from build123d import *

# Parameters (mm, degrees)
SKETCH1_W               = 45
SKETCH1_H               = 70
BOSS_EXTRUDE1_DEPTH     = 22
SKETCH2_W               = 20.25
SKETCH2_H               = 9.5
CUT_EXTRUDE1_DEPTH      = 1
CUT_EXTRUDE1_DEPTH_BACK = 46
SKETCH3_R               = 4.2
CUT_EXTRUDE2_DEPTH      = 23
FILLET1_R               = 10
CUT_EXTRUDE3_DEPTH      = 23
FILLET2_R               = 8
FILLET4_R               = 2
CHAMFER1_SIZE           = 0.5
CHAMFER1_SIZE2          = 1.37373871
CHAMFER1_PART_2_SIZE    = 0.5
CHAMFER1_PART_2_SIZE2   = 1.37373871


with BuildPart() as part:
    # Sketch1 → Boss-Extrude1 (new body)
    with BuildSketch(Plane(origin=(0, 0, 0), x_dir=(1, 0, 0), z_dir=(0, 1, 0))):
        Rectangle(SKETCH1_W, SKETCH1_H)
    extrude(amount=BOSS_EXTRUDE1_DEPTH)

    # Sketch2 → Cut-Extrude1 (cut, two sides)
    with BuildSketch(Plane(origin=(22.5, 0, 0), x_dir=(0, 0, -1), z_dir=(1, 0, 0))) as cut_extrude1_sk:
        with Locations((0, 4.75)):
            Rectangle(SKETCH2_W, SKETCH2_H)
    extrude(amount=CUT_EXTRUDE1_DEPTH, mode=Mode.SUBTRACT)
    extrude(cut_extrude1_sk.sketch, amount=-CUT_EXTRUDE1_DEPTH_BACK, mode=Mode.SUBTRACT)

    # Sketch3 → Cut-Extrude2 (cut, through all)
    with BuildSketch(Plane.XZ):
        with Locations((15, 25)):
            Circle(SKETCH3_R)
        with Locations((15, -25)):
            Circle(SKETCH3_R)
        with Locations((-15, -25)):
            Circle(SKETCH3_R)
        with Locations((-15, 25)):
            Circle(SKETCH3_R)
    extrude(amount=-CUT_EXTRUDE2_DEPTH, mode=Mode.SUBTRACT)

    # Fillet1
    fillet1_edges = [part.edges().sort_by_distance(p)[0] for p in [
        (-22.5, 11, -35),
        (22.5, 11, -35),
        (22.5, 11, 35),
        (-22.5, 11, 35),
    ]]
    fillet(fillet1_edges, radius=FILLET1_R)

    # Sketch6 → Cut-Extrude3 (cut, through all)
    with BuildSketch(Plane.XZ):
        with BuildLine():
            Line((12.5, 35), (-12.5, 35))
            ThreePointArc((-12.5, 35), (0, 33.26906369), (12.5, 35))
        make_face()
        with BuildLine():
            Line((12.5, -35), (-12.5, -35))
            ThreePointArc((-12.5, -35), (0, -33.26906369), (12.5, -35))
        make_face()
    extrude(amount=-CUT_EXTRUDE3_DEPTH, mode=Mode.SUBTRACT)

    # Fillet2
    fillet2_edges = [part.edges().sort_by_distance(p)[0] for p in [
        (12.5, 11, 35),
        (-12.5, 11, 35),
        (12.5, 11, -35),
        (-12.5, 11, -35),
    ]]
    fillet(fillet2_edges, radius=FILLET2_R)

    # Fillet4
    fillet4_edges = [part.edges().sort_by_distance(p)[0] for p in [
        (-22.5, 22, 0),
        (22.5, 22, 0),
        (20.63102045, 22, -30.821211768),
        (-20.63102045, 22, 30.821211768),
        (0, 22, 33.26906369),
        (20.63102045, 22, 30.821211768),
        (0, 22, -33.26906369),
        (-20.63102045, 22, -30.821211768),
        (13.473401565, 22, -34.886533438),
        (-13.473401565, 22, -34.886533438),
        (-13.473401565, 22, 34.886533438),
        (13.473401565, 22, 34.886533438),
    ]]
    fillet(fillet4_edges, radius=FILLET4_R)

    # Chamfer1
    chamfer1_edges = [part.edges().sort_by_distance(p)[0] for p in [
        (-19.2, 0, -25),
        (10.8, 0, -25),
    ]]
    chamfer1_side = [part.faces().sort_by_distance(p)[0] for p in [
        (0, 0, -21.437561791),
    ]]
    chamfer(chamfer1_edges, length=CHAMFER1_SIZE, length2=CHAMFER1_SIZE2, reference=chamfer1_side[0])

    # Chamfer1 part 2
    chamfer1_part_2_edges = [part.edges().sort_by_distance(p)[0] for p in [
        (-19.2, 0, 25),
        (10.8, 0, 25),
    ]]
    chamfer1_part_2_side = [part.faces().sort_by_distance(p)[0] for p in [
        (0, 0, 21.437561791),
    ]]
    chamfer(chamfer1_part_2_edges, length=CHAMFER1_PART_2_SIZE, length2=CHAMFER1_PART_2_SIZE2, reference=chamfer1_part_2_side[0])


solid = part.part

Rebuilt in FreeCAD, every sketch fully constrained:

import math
import FreeCAD as App
import Part
import Sketcher

V = App.Vector


def edges_at(feature, points):
    """Names of the edges that pass closest to the given points."""
    edges = feature.Shape.Edges
    near = lambda p: min(range(len(edges)), key=lambda i: edges[i].distToShape(Part.Vertex(*p))[0])
    return sorted({f"Edge{near(p) + 1}" for p in points})


def add_polygon(sketch, points):
    """Adds a closed chain of lines whose ends are joined by coincident constraints."""
    first, n = sketch.GeometryCount, len(points)
    for a, b in zip(points, points[1:] + points[:1]):
        sketch.addGeometry(Part.LineSegment(App.Vector(*a, 0), App.Vector(*b, 0)), False)
    for i in range(n):
        sketch.addConstraint(Sketcher.Constraint("Coincident", first + i, 2, first + (i + 1) % n, 1))

doc = App.newDocument("Part")
body = doc.addObject("PartDesign::Body", "Body")

# Sketch on XZ plane
sketch1 = doc.addObject("Sketcher::SketchObject", "Sketch")
body.addObject(sketch1)
sketch1.AttachmentSupport = (doc.XZ_Plane, [""])
sketch1.MapMode = "FlatFace"
add_polygon(sketch1, [(-22, -35), (-22, 35), (22, 35), (22, -35)])  # lines 0-3
sketch1.addConstraint([
    Sketcher.Constraint("Vertical", 0),
    Sketcher.Constraint("Horizontal", 1),
    Sketcher.Constraint("Vertical", 2),
    Sketcher.Constraint("Horizontal", 3),
    Sketcher.Constraint("Symmetric", 0, 2, 2, 2, -1, 1),
    Sketcher.Constraint("DistanceX", 1, 1, 1, 2, 45.0),
    Sketcher.Constraint("DistanceY", 0, 1, 0, 2, 70.0),
])
pad1 = doc.addObject("PartDesign::Pad", "Pad")
body.addObject(pad1)
pad1.Profile = sketch1
pad1.Length = 22
pad1.Reversed = True

# Sketch on YZ plane
sketch2 = doc.addObject("Sketcher::SketchObject", "Sketch001")
body.addObject(sketch2)
sketch2.AttachmentSupport = (doc.YZ_Plane, [""])
sketch2.MapMode = "FlatFace"
sketch2.AttachmentOffset = App.Placement(V(0, 0, 22.5), App.Rotation())
add_polygon(sketch2, [(10, 10), (0, 10), (0, -10), (10, -10)])  # lines 0-3
sketch2.addConstraint([
    Sketcher.Constraint("Horizontal", 0),
    Sketcher.Constraint("Vertical", 1),
    Sketcher.Constraint("Horizontal", 2),
    Sketcher.Constraint("Vertical", 3),
    Sketcher.Constraint("Symmetric", 0, 2, 1, 2, -1, 1),
    Sketcher.Constraint("DistanceX", 0, 2, 0, 1, 9.5),
    Sketcher.Constraint("DistanceY", 1, 2, 1, 1, 20.25),
])
pocket1 = doc.addObject("PartDesign::Pocket", "Pocket")
body.addObject(pocket1)
pocket1.Profile = sketch2
pocket1.Type = "ThroughAll"
pocket1.Midplane = True

# Sketch on XZ plane
sketch3 = doc.addObject("Sketcher::SketchObject", "Sketch002")
body.addObject(sketch3)
sketch3.AttachmentSupport = (doc.XZ_Plane, [""])
sketch3.MapMode = "FlatFace"
sketch3.addGeometry([
    Part.Circle(V(15, 25, 0), V(0, 0, 1), 4.2),
    Part.Circle(V(15, -25, 0), V(0, 0, 1), 4.2),
    Part.Circle(V(-15, -25, 0), V(0, 0, 1), 4.2),
    Part.Circle(V(-15, 25, 0), V(0, 0, 1), 4.2),
], False)
sketch3.addConstraint([
    Sketcher.Constraint("Equal", 0, 1),
    Sketcher.Constraint("Equal", 1, 2),
    Sketcher.Constraint("Equal", 2, 3),
    Sketcher.Constraint("Symmetric", 0, 3, 2, 3, -1, 1),
    Sketcher.Constraint("Symmetric", 1, 3, 3, 3, -1, 1),
    Sketcher.Constraint("Symmetric", 1, 3, 2, 3, -2),
    Sketcher.Constraint("Diameter", 0, 8.4),
    Sketcher.Constraint("DistanceX", -1, 1, 0, 3, 15.0),
    Sketcher.Constraint("DistanceY", -1, 1, 0, 3, 25.0),
])
pocket2 = doc.addObject("PartDesign::Pocket", "Pocket001")
body.addObject(pocket2)
pocket2.Profile = sketch3
pocket2.Type = "ThroughAll"
doc.recompute()

fillet = doc.addObject("PartDesign::Fillet", "Fillet")
body.addObject(fillet)
fillet.Base = (pocket2, edges_at(pocket2, [
    (-22.5, 11, -35),
    (22.5, 11, -35),
    (22.5, 11, 35),
    (-22.5, 11, 35),
]))
fillet.Radius = 10

# Sketch on XZ plane
sketch4 = doc.addObject("Sketcher::SketchObject", "Sketch003")
body.addObject(sketch4)
sketch4.AttachmentSupport = (doc.XZ_Plane, [""])
sketch4.MapMode = "FlatFace"
sketch4.addGeometry([
    Part.LineSegment(V(12, 35, 0), V(-12, 35, 0)),
    Part.ArcOfCircle(Part.Circle(V(0, 79, 0), V(0, 0, 1), 46), math.radians(-106), math.radians(-74)),
    Part.LineSegment(V(-12, -35, 0), V(12, -35, 0)),
    Part.ArcOfCircle(Part.Circle(V(0, -79, 0), V(0, 0, 1), 46), math.radians(74), math.radians(106)),
], False)
sketch4.addConstraint([
    Sketcher.Constraint("Coincident", 0, 1, 1, 2),
    Sketcher.Constraint("Coincident", 1, 1, 0, 2),
    Sketcher.Constraint("Coincident", 2, 1, 3, 2),
    Sketcher.Constraint("Coincident", 3, 1, 2, 2),
    Sketcher.Constraint("Horizontal", 0),
    Sketcher.Constraint("Horizontal", 2),
    Sketcher.Constraint("Equal", 1, 3),
    Sketcher.Constraint("Symmetric", 1, 3, 3, 3, -1, 1),
    Sketcher.Constraint("Symmetric", 1, 1, 2, 1, -1),
    Sketcher.Constraint("Radius", 1, 46.0),
    Sketcher.Constraint("DistanceX", 0, 2, 0, 1, 25.0),
    Sketcher.Constraint("DistanceY", -1, 1, 0, 1, 35.0),
])
pocket3 = doc.addObject("PartDesign::Pocket", "Pocket002")
body.addObject(pocket3)
pocket3.Profile = sketch4
pocket3.Type = "ThroughAll"
doc.recompute()

fillet2 = doc.addObject("PartDesign::Fillet", "Fillet001")
body.addObject(fillet2)
fillet2.Base = (pocket3, edges_at(pocket3, [
    (12.5, 11, 35),
    (-12.5, 11, 35),
    (12.5, 11, -35),
    (-12.5, 11, -35),
]))
fillet2.Radius = 8
doc.recompute()

fillet3 = doc.addObject("PartDesign::Fillet", "Fillet002")
body.addObject(fillet3)
fillet3.Base = (fillet2, edges_at(fillet2, [
    (-22.5, 22, 0),
    (22.5, 22, 0),
    (20.631, 22, -30.821),
    (-20.631, 22, 30.821),
    (0, 22, 33.269),
    (20.631, 22, 30.821),
    (0, 22, -33.269),
    (-20.631, 22, -30.821),
    (13.473, 22, -34.887),
    (-13.473, 22, -34.887),
    (-13.473, 22, 34.887),
    (13.473, 22, 34.887),
]))
fillet3.Radius = 2
doc.recompute()

chamfer = doc.addObject("PartDesign::Chamfer", "Chamfer")
body.addObject(chamfer)
chamfer.Base = (fillet3, edges_at(fillet3, [(-19.2, 0, -25), (10.8, 0, -25)]))
chamfer.ChamferType = "Two distances"
chamfer.Size = 0.5
chamfer.Size2 = 1.373739
doc.recompute()

chamfer2 = doc.addObject("PartDesign::Chamfer", "Chamfer001")
body.addObject(chamfer2)
chamfer2.Base = (chamfer, edges_at(chamfer, [(-19.2, 0, 25), (10.8, 0, 25)]))
chamfer2.ChamferType = "Two distances"
chamfer2.Size = 0.5
chamfer2.Size2 = 1.373739

doc.recompute()
